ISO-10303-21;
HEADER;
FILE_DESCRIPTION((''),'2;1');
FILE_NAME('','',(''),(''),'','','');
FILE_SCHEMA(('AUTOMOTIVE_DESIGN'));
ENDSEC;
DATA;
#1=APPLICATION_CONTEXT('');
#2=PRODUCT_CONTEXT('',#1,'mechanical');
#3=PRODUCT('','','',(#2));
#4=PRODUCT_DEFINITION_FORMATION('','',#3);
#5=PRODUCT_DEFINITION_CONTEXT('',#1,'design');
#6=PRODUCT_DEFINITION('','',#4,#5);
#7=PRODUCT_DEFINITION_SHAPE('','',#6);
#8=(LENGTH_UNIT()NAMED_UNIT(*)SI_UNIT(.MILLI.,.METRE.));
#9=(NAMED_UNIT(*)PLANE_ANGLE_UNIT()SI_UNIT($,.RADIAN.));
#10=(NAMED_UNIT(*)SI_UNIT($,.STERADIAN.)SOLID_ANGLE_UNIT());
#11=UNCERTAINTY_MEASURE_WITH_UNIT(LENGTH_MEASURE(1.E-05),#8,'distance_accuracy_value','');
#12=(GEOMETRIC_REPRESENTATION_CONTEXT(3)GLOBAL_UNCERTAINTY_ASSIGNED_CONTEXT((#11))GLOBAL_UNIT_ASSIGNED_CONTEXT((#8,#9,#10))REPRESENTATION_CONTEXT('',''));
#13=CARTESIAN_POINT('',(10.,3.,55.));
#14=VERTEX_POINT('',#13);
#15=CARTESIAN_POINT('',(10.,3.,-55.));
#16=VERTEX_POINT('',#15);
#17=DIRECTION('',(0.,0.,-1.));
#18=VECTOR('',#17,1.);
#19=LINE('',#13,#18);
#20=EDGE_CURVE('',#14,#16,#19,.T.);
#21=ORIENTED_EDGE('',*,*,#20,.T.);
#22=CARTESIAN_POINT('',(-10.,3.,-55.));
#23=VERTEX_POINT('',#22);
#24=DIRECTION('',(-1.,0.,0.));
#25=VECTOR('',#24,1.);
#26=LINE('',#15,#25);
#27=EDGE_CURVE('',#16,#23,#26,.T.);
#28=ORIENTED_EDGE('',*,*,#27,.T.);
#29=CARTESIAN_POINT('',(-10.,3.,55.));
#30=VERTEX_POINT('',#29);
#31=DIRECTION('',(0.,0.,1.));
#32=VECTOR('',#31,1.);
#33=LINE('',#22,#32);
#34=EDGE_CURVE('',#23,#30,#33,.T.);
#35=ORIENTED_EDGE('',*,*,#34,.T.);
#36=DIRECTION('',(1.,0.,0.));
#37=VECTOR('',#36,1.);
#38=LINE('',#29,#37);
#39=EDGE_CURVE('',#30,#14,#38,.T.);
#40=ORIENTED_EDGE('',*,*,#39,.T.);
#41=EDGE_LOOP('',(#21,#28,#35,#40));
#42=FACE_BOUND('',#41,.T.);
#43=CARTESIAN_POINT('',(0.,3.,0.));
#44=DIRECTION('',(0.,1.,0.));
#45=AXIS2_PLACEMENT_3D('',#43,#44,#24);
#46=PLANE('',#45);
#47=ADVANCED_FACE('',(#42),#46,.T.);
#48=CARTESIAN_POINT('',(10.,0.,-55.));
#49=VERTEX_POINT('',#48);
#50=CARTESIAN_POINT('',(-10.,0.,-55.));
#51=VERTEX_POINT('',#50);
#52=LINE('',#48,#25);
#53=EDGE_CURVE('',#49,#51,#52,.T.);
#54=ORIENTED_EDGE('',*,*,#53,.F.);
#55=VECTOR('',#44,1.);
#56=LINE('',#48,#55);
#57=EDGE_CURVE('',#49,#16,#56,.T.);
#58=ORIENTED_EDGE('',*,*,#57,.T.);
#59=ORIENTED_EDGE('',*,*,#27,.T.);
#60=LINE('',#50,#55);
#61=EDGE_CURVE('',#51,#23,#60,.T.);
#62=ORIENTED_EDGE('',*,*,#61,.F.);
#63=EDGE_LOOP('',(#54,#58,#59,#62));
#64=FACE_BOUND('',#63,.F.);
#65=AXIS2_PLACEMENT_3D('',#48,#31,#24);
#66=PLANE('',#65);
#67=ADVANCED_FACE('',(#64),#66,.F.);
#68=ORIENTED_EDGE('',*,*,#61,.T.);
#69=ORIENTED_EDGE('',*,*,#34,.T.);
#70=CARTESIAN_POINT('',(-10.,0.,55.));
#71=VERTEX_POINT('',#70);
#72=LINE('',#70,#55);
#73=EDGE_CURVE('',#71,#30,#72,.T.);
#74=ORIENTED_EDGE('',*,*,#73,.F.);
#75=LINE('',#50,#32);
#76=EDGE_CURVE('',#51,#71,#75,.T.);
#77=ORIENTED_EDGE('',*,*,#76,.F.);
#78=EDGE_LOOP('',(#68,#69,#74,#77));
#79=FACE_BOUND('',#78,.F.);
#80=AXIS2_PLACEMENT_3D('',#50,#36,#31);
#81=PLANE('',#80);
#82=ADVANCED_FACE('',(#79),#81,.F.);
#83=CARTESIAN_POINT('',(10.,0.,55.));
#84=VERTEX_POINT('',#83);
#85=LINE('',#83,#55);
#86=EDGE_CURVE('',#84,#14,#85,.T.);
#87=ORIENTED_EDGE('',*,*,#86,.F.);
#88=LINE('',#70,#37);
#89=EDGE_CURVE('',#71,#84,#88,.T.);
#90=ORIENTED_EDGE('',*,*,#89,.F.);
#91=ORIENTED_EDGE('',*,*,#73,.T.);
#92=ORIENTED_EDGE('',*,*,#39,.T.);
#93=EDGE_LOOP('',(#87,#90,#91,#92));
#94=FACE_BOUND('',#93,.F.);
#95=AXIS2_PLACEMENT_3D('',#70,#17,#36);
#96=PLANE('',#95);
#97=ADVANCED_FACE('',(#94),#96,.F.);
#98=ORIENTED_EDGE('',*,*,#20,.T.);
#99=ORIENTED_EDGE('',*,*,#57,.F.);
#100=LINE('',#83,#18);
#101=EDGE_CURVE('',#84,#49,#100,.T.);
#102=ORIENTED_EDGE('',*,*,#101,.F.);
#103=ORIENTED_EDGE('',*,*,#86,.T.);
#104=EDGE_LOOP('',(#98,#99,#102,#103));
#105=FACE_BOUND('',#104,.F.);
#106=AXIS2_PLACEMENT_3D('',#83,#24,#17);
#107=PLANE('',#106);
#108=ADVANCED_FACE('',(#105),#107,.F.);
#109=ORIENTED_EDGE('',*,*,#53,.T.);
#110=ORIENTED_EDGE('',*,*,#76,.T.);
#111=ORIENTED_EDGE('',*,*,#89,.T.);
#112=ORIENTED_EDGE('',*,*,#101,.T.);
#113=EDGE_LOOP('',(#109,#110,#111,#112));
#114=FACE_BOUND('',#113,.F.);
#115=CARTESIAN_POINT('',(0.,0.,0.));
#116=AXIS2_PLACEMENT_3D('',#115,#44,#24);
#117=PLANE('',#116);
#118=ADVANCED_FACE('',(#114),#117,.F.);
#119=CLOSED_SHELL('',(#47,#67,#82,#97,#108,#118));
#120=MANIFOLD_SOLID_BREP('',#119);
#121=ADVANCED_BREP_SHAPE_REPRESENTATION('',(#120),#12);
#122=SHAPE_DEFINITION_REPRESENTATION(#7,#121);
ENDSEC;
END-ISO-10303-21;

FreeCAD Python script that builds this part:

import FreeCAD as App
import Part
import Sketcher

V = App.Vector
Q = App.Units.Quantity

doc = App.newDocument("Part")
params = doc.addObject("Spreadsheet::Sheet", "Params")
for row, (alias, value) in enumerate([
    ("sketch1_width", "20 mm"),
    ("sketch1_height", "110 mm"),
    ("pad1_length", "3 mm"),
], start=1):
    params.set(f"A{row}", alias)
    params.set(f"B{row}", "=" + value)
    params.setAlias(f"B{row}", alias)

body = doc.addObject("PartDesign::Body", "Body")

# Sketch on XZ plane
sketch1 = doc.addObject("Sketcher::SketchObject", "Sketch")
body.addObject(sketch1)
sketch1.AttachmentSupport = (doc.XZ_Plane, [""])
sketch1.MapMode = "FlatFace"
sketch1.addGeometry([
    Part.LineSegment(V(-10, -55, 0), V(-10, 55, 0)),
    Part.LineSegment(V(-10, 55, 0), V(10, 55, 0)),
    Part.LineSegment(V(10, 55, 0), V(10, -55, 0)),
    Part.LineSegment(V(10, -55, 0), V(-10, -55, 0)),
], False)
sketch1.addConstraint([
    Sketcher.Constraint("Coincident", 0, 2, 1, 1),
    Sketcher.Constraint("Coincident", 1, 2, 2, 1),
    Sketcher.Constraint("Coincident", 2, 2, 3, 1),
    Sketcher.Constraint("Coincident", 3, 2, 0, 1),
    Sketcher.Constraint("Vertical", 0),
    Sketcher.Constraint("Horizontal", 1),
    Sketcher.Constraint("Vertical", 2),
    Sketcher.Constraint("Horizontal", 3),
    Sketcher.Constraint("Symmetric", 0, 2, 2, 2, -1, 1),
    Sketcher.Constraint("DistanceX", 1, 1, 1, 2, Q("20 mm")),
    Sketcher.Constraint("DistanceY", 0, 1, 0, 2, Q("110 mm")),
])
sketch1.setExpression("Constraints[9]", "Params.sketch1_width")
sketch1.setExpression("Constraints[10]", "Params.sketch1_height")
pad1 = doc.addObject("PartDesign::Pad", "Pad")
body.addObject(pad1)
pad1.Profile = sketch1
pad1.setExpression("Length", "Params.pad1_length")
pad1.Reversed = True

doc.recompute()
